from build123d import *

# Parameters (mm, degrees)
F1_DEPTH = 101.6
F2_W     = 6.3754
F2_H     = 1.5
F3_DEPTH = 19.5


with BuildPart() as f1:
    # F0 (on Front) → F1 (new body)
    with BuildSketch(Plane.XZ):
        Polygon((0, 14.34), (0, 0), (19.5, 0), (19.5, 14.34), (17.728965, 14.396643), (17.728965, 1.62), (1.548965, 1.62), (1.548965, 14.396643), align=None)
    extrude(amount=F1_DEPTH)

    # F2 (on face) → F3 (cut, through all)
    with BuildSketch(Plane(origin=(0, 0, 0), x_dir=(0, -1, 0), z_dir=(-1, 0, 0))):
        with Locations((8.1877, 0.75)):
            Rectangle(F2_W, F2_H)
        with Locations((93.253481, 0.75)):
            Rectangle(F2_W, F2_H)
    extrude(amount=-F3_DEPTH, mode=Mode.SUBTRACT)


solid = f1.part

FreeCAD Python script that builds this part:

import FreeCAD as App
import Part
import Sketcher


def add_polygon(sketch, points):
    """Adds a closed chain of lines whose ends are joined by coincident constraints."""
    first, n = sketch.GeometryCount, len(points)
    for a, b in zip(points, points[1:] + points[:1]):
        sketch.addGeometry(Part.LineSegment(App.Vector(*a, 0), App.Vector(*b, 0)), False)
    for i in range(n):
        sketch.addConstraint(Sketcher.Constraint("Coincident", first + i, 2, first + (i + 1) % n, 1))

doc = App.newDocument("Part")
body = doc.addObject("PartDesign::Body", "Body")

# Sketch on XZ plane
sketch1 = body.newObject("Sketcher::SketchObject", "Sketch")
sketch1.AttachmentSupport = (doc.getObject("XZ_Plane"), [""])
sketch1.MapMode = "FlatFace"
add_polygon(sketch1, [(0, 14.3), (0, 0), (19.5, 0), (19.5, 14.3), (17.7, 14.4), (17.7, 1.6), (1.5, 1.6), (1.5, 14.4)])  # lines 0-7
sketch1.addConstraint([
    Sketcher.Constraint("Vertical", 0),
    Sketcher.Constraint("Horizontal", 1),
    Sketcher.Constraint("Vertical", 2),
    Sketcher.Constraint("Vertical", 4),
    Sketcher.Constraint("Horizontal", 5),
    Sketcher.Constraint("Vertical", 6),
    Sketcher.Constraint("Coincident", 0, 2, -1, 1),
    Sketcher.Constraint("Horizontal", 3, 2, 6, 2),
    Sketcher.Constraint("Horizontal", 2, 2, 7, 2),
    Sketcher.Constraint("DistanceX", 1, 1, 1, 2, 19.5),
    Sketcher.Constraint("DistanceX", 5, 2, 5, 1, 16.18),
    Sketcher.Constraint("DistanceY", 0, 2, 0, 1, 14.34),
    Sketcher.Constraint("Distance", 7, 1.55),
    Sketcher.Constraint("DistanceY", -1, 1, 4, 2, 1.62),
    Sketcher.Constraint("Distance", 3, 1.771941),
])
pad1 = body.newObject("PartDesign::Pad", "Pad")
pad1.Profile = sketch1
pad1.Length = 101.6

# Sketch on YZ plane
sketch2 = body.newObject("Sketcher::SketchObject", "Sketch001")
sketch2.AttachmentSupport = (doc.getObject("YZ_Plane"), [""])
sketch2.MapMode = "FlatFace"
add_polygon(sketch2, [(-5, 1.5), (-5, 0), (-11.4, 0), (-11.4, 1.5)])  # lines 0-3
add_polygon(sketch2, [(-90.1, 1.5), (-90.1, 0), (-96.4, 0), (-96.4, 1.5)])  # lines 4-7
sketch2.addConstraint([
    Sketcher.Constraint("Vertical", 0),
    Sketcher.Constraint("Horizontal", 1),
    Sketcher.Constraint("Vertical", 2),
    Sketcher.Constraint("Horizontal", 3),
    Sketcher.Constraint("Vertical", 4),
    Sketcher.Constraint("Horizontal", 5),
    Sketcher.Constraint("Vertical", 6),
    Sketcher.Constraint("Horizontal", 7),
    Sketcher.Constraint("PointOnObject", 0, 2, -1),
    Sketcher.Constraint("PointOnObject", 4, 2, -1),
    Sketcher.Constraint("Horizontal", 3, 2, 6, 2),
    Sketcher.Constraint("Equal", 3, 5),
    Sketcher.Constraint("DistanceY", 0, 2, 0, 1, 1.5),
    Sketcher.Constraint("DistanceX", 0, 2, -1, 1, 5.0),
    Sketcher.Constraint("DistanceX", 1, 2, 1, 1, 6.3754),
    Sketcher.Constraint("DistanceX", 4, 2, -1, 1, 90.065781),
])
pocket1 = body.newObject("PartDesign::Pocket", "Pocket")
pocket1.Profile = sketch2
pocket1.Type = "ThroughAll"
pocket1.Reversed = True

doc.recompute()
